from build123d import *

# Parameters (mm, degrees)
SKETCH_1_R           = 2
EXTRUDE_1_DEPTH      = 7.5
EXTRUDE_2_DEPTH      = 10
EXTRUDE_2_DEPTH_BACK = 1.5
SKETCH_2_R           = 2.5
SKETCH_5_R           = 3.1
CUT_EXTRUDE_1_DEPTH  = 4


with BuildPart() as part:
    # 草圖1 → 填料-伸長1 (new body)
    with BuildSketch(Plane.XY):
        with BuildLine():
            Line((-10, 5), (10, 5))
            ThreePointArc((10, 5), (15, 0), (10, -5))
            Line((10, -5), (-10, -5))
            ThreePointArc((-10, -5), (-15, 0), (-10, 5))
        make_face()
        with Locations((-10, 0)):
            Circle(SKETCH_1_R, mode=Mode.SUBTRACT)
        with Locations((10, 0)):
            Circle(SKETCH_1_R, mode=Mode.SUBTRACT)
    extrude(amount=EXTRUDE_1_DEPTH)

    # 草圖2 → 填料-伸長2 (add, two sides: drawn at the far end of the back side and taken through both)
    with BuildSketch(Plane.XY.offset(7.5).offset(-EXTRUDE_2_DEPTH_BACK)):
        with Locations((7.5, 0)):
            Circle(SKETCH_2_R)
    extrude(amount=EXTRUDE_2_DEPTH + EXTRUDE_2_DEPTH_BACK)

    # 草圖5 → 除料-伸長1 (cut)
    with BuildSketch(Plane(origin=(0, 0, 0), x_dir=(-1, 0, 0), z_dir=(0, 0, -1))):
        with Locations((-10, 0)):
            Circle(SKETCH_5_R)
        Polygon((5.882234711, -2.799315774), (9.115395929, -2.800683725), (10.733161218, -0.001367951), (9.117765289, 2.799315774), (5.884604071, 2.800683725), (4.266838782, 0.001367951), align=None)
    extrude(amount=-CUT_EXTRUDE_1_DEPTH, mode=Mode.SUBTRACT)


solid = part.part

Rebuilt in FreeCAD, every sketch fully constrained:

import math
import FreeCAD as App
import Part
import Sketcher


def add_polygon(sketch, points):
    """Adds a closed chain of lines whose ends are joined by coincident constraints."""
    first, n = sketch.GeometryCount, len(points)
    for a, b in zip(points, points[1:] + points[:1]):
        sketch.addGeometry(Part.LineSegment(App.Vector(*a, 0), App.Vector(*b, 0)), False)
    for i in range(n):
        sketch.addConstraint(Sketcher.Constraint("Coincident", first + i, 2, first + (i + 1) % n, 1))

doc = App.newDocument("Part")
body = doc.addObject("PartDesign::Body", "Body")

sketch1 = body.newObject("Sketcher::SketchObject", "Sketch")
sketch1.AttachmentSupport = (doc.getObject("XY_Plane"), [""])
sketch1.MapMode = "FlatFace"
sketch1.addGeometry([
    Part.LineSegment(App.Vector(10, 5, 0), App.Vector(-10, 5, 0)),
    Part.ArcOfCircle(Part.Circle(App.Vector(-10, 0, 0), App.Vector(0, 0, 1), 5), math.radians(90), math.radians(270)),
    Part.LineSegment(App.Vector(-10, -5, 0), App.Vector(10, -5, 0)),
    Part.ArcOfCircle(Part.Circle(App.Vector(10, 0, 0), App.Vector(0, 0, 1), 5), math.radians(-90), math.radians(90)),
    Part.Circle(App.Vector(10, 0, 0), App.Vector(0, 0, 1), 2),
    Part.Circle(App.Vector(-10, 0, 0), App.Vector(0, 0, 1), 2),
], False)
sketch1.addConstraint([
    Sketcher.Constraint("Tangent", 0, 2, 1, 1),
    Sketcher.Constraint("Tangent", 1, 2, 2, 1),
    Sketcher.Constraint("Tangent", 2, 2, 3, 1),
    Sketcher.Constraint("Tangent", 3, 2, 0, 1),
    Sketcher.Constraint("Horizontal", 0),
    Sketcher.Constraint("Horizontal", 2),
    Sketcher.Constraint("Coincident", 4, 3, 3, 3),
    Sketcher.Constraint("Coincident", 5, 3, 1, 3),
    Sketcher.Constraint("Equal", 4, 5),
    Sketcher.Constraint("Symmetric", 1, 3, 3, 3, -1, 1),
    Sketcher.Constraint("Diameter", 4, 4.0),
    Sketcher.Constraint("Radius", 1, 5.0),
    Sketcher.Constraint("DistanceX", 0, 2, 0, 1, 20.0),
])
pad1 = body.newObject("PartDesign::Pad", "Pad")
pad1.Profile = sketch1
pad1.Length = 7.5

sketch2 = body.newObject("Sketcher::SketchObject", "Sketch001")
sketch2.AttachmentSupport = (doc.getObject("XY_Plane"), [""])
sketch2.MapMode = "FlatFace"
sketch2.AttachmentOffset = App.Placement(App.Vector(0, 0, 7.5), App.Rotation())
sketch2.addGeometry(Part.Circle(App.Vector(7.5, 0, 0), App.Vector(0, 0, 1), 2.5), False)
sketch2.addConstraint([
    Sketcher.Constraint("PointOnObject", 0, 3, -1),
    Sketcher.Constraint("Diameter", 0, 5.0),
    Sketcher.Constraint("DistanceX", -1, 1, 0, 3, 7.5),
])
pad2 = body.newObject("PartDesign::Pad", "Pad001")
pad2.Profile = sketch2
pad2.Type = "TwoLengths"
pad2.Length = 10
pad2.Length2 = 1.5

sketch3 = body.newObject("Sketcher::SketchObject", "Sketch002")
sketch3.AttachmentSupport = (doc.getObject("XY_Plane"), [""])
sketch3.MapMode = "FlatFace"
sketch3.addGeometry(Part.Circle(App.Vector(10, 0, 0), App.Vector(0, 0, 1), 3.1), False)
add_polygon(sketch3, [(-5.9, -2.8), (-9.1, -2.8), (-10.7, 0), (-9.1, 2.8), (-5.9, 2.8), (-4.3, 0)])
sketch3.addConstraint([
    Sketcher.Constraint("PointOnObject", 0, 3, -1),
    Sketcher.Constraint("Parallel", 1, 4),
    Sketcher.Constraint("Parallel", 2, 5),
    Sketcher.Constraint("Parallel", 3, 6),
    Sketcher.Constraint("Equal", 1, 2),
    Sketcher.Constraint("Equal", 2, 3),
    Sketcher.Constraint("Equal", 3, 4),
    Sketcher.Constraint("Diameter", 0, 6.2),
    Sketcher.Constraint("DistanceX", -1, 1, 0, 3, 10.0),
    Sketcher.Constraint("DistanceY", 1, 2, 3, 2, 5.599999),
    Sketcher.Constraint("Distance", 1, 3.233162),
    Sketcher.Constraint("DistanceX", 2, 2, -1, 1, 10.733161),
    Sketcher.Constraint("DistanceX", 3, 2, 1, 2, 0.002369),
    Sketcher.Constraint("DistanceY", 2, 2, 4, 2, 2.802052),
    Sketcher.Constraint("DistanceY", 1, 2, -1, 1, 2.800684),
])
pocket1 = body.newObject("PartDesign::Pocket", "Pocket")
pocket1.Profile = sketch3
pocket1.Length = 4
pocket1.Reversed = True

doc.recompute()
